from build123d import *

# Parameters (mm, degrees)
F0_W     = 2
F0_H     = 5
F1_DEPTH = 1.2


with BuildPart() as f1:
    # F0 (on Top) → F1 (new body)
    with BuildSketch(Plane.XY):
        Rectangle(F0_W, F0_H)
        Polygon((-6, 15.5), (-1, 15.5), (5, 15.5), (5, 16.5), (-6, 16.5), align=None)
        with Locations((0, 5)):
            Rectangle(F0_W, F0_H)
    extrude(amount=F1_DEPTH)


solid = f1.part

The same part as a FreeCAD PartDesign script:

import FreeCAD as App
import Part
import Sketcher

V = App.Vector


def add_polygon(sketch, points):
    """Adds a closed chain of lines whose ends are joined by coincident constraints."""
    first, n = sketch.GeometryCount, len(points)
    for a, b in zip(points, points[1:] + points[:1]):
        sketch.addGeometry(Part.LineSegment(App.Vector(*a, 0), App.Vector(*b, 0)), False)
    for i in range(n):
        sketch.addConstraint(Sketcher.Constraint("Coincident", first + i, 2, first + (i + 1) % n, 1))

doc = App.newDocument("Part")
body = doc.addObject("PartDesign::Body", "Body")
body.AllowCompound = True

sketch1 = body.newObject("Sketcher::SketchObject", "Sketch")
sketch1.AttachmentSupport = (doc.getObject("XY_Plane"), [""])
sketch1.MapMode = "FlatFace"
add_polygon(sketch1, [(-1, -2.5), (1, -2.5), (1, 7.5), (-1, 7.5)])
add_polygon(sketch1, [(-6, 15.5), (5, 15.5), (5, 16.5), (-6, 16.5)])
sketch1.addConstraint([
    Sketcher.Constraint("Horizontal", 0),
    Sketcher.Constraint("Vertical", 1),
    Sketcher.Constraint("Horizontal", 2),
    Sketcher.Constraint("Vertical", 3),
    Sketcher.Constraint("Horizontal", 4),
    Sketcher.Constraint("Vertical", 5),
    Sketcher.Constraint("Horizontal", 6),
    Sketcher.Constraint("Vertical", 7),
    Sketcher.Constraint("DistanceX", 0, 1, 0, 2, 2.0),
    Sketcher.Constraint("DistanceX", 4, 1, 4, 2, 11.0),
    Sketcher.Constraint("DistanceY", 1, 1, 1, 2, 10.0),
    Sketcher.Constraint("DistanceY", 5, 1, 5, 2, 1.0),
    Sketcher.Constraint("DistanceX", -1, 1, 0, 2, 1.0),
    Sketcher.Constraint("DistanceX", -1, 1, 4, 2, 5.0),
    Sketcher.Constraint("DistanceY", 1, 2, 4, 2, 8.0),
    Sketcher.Constraint("DistanceY", 0, 2, -1, 1, 2.5),
])
pad1 = body.newObject("PartDesign::Pad", "Pad")
pad1.Profile = sketch1
pad1.Length = 1.2

doc.recompute()
